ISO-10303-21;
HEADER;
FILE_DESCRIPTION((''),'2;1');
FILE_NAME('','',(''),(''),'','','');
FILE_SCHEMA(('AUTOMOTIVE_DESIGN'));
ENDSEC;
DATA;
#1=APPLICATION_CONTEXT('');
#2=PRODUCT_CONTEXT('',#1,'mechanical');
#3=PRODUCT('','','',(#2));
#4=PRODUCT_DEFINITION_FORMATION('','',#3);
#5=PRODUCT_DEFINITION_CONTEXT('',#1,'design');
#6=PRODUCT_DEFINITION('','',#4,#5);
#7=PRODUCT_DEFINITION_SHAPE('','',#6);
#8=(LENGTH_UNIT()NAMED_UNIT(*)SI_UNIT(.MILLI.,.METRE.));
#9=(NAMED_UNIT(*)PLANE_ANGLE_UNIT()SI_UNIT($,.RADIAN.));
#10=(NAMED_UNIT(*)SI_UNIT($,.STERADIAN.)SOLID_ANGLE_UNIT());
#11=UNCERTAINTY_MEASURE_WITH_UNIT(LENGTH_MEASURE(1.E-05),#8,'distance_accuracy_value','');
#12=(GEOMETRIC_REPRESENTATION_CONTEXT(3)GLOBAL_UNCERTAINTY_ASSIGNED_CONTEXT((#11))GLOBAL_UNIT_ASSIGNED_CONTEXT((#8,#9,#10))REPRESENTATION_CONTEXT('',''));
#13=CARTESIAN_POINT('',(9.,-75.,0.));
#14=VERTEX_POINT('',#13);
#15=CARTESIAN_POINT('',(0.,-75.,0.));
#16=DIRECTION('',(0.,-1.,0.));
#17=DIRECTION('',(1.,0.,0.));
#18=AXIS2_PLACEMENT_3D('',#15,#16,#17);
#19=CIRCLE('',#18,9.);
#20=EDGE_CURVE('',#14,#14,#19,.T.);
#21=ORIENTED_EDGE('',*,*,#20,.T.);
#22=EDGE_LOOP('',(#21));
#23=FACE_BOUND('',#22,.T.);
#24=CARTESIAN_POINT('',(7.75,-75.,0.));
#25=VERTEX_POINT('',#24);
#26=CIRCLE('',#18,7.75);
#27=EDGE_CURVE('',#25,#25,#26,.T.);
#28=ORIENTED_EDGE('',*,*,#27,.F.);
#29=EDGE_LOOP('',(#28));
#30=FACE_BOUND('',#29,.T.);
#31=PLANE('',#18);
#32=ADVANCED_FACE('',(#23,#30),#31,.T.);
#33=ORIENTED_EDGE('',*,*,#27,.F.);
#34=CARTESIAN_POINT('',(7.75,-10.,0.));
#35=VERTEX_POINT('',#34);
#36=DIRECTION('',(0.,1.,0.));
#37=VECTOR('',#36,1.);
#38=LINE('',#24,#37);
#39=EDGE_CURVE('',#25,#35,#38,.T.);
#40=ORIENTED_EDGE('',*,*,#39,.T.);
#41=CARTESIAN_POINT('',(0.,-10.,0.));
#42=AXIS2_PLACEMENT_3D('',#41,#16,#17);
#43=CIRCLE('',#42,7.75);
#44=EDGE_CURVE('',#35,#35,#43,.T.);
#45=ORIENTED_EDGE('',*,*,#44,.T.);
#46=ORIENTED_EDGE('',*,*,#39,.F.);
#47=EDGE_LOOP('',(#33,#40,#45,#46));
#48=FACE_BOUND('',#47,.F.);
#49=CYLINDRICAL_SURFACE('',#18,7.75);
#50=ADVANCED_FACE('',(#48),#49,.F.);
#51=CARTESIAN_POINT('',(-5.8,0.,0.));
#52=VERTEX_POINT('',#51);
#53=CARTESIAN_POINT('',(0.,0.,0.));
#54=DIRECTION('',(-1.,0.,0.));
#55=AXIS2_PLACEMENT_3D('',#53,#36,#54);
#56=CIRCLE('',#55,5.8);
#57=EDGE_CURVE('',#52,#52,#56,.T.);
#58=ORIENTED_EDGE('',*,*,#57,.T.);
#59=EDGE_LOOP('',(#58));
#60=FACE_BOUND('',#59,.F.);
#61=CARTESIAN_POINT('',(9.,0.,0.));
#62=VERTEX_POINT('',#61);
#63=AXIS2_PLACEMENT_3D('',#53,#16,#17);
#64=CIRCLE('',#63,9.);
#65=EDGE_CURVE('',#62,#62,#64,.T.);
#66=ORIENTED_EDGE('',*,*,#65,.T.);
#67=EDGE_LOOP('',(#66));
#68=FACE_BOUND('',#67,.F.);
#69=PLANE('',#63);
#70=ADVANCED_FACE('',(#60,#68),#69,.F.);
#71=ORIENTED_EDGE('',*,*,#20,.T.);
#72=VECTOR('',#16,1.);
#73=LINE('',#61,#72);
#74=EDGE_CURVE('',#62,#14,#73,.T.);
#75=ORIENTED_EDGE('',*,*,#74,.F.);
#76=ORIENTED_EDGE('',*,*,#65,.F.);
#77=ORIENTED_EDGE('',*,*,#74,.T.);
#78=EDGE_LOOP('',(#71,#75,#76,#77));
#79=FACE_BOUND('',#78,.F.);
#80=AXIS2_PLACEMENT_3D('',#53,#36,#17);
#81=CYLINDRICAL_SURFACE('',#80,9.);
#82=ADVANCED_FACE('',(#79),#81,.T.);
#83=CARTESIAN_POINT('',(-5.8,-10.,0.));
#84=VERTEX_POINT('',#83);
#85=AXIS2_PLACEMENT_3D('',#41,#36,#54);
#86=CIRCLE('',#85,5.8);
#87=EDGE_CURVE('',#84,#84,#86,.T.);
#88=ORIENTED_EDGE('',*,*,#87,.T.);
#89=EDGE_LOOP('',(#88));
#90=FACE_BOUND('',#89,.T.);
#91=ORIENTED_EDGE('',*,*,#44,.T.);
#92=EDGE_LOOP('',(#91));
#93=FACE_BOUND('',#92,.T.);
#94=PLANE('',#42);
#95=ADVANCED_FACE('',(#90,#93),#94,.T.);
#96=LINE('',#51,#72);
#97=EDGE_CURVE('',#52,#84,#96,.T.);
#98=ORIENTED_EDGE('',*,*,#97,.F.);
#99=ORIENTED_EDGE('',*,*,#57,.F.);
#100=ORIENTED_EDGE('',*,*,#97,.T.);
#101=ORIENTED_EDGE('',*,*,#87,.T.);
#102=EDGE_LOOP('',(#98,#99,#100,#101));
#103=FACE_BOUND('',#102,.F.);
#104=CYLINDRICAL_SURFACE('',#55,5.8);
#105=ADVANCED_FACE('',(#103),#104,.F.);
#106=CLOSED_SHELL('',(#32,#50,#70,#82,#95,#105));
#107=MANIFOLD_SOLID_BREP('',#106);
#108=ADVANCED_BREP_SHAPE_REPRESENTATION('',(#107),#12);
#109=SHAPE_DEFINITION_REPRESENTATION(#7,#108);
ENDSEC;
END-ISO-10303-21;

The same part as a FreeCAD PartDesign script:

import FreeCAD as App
import Part
import Sketcher

V = App.Vector

doc = App.newDocument("Part")
body = doc.addObject("PartDesign::Body", "Body")

sketch1 = doc.addObject("Sketcher::SketchObject", "Sketch")
body.addObject(sketch1)
sketch1.AttachmentSupport = (doc.XZ_Plane, [""])
sketch1.MapMode = "FlatFace"
sketch1.addGeometry(Part.Circle(V(0, 0, 0), V(0, 0, 1), 9), False)
sketch1.addConstraint([
    Sketcher.Constraint("Coincident", 0, 3, -1, 1),
    Sketcher.Constraint("Diameter", 0, 18.0),
])
pad1 = doc.addObject("PartDesign::Pad", "Pad")
body.addObject(pad1)
pad1.Profile = sketch1
pad1.Length = 75

sketch2 = doc.addObject("Sketcher::SketchObject", "Sketch001")
body.addObject(sketch2)
sketch2.AttachmentSupport = (doc.XZ_Plane, [""])
sketch2.MapMode = "FlatFace"
sketch2.AttachmentOffset = App.Placement(V(0, 0, 75), App.Rotation())
sketch2.addGeometry(Part.Circle(V(0, 0, 0), V(0, 0, 1), 8), False)
sketch2.addConstraint([
    Sketcher.Constraint("Coincident", 0, 3, -1, 1),
    Sketcher.Constraint("Diameter", 0, 15.5),
])
pocket1 = doc.addObject("PartDesign::Pocket", "Pocket")
body.addObject(pocket1)
pocket1.Profile = sketch2
pocket1.Length = 65

sketch3 = doc.addObject("Sketcher::SketchObject", "Sketch002")
body.addObject(sketch3)
sketch3.AttachmentSupport = (doc.XZ_Plane, [""])
sketch3.MapMode = "FlatFace"
sketch3.addGeometry(Part.Circle(V(0, 0, 0), V(0, 0, 1), 6), False)
sketch3.addConstraint([
    Sketcher.Constraint("Coincident", 0, 3, -1, 1),
    Sketcher.Constraint("Diameter", 0, 11.6),
])
pocket2 = doc.addObject("PartDesign::Pocket", "Pocket001")
body.addObject(pocket2)
pocket2.Profile = sketch3
pocket2.Type = "ThroughAll"
pocket2.Reversed = True

doc.recompute()
